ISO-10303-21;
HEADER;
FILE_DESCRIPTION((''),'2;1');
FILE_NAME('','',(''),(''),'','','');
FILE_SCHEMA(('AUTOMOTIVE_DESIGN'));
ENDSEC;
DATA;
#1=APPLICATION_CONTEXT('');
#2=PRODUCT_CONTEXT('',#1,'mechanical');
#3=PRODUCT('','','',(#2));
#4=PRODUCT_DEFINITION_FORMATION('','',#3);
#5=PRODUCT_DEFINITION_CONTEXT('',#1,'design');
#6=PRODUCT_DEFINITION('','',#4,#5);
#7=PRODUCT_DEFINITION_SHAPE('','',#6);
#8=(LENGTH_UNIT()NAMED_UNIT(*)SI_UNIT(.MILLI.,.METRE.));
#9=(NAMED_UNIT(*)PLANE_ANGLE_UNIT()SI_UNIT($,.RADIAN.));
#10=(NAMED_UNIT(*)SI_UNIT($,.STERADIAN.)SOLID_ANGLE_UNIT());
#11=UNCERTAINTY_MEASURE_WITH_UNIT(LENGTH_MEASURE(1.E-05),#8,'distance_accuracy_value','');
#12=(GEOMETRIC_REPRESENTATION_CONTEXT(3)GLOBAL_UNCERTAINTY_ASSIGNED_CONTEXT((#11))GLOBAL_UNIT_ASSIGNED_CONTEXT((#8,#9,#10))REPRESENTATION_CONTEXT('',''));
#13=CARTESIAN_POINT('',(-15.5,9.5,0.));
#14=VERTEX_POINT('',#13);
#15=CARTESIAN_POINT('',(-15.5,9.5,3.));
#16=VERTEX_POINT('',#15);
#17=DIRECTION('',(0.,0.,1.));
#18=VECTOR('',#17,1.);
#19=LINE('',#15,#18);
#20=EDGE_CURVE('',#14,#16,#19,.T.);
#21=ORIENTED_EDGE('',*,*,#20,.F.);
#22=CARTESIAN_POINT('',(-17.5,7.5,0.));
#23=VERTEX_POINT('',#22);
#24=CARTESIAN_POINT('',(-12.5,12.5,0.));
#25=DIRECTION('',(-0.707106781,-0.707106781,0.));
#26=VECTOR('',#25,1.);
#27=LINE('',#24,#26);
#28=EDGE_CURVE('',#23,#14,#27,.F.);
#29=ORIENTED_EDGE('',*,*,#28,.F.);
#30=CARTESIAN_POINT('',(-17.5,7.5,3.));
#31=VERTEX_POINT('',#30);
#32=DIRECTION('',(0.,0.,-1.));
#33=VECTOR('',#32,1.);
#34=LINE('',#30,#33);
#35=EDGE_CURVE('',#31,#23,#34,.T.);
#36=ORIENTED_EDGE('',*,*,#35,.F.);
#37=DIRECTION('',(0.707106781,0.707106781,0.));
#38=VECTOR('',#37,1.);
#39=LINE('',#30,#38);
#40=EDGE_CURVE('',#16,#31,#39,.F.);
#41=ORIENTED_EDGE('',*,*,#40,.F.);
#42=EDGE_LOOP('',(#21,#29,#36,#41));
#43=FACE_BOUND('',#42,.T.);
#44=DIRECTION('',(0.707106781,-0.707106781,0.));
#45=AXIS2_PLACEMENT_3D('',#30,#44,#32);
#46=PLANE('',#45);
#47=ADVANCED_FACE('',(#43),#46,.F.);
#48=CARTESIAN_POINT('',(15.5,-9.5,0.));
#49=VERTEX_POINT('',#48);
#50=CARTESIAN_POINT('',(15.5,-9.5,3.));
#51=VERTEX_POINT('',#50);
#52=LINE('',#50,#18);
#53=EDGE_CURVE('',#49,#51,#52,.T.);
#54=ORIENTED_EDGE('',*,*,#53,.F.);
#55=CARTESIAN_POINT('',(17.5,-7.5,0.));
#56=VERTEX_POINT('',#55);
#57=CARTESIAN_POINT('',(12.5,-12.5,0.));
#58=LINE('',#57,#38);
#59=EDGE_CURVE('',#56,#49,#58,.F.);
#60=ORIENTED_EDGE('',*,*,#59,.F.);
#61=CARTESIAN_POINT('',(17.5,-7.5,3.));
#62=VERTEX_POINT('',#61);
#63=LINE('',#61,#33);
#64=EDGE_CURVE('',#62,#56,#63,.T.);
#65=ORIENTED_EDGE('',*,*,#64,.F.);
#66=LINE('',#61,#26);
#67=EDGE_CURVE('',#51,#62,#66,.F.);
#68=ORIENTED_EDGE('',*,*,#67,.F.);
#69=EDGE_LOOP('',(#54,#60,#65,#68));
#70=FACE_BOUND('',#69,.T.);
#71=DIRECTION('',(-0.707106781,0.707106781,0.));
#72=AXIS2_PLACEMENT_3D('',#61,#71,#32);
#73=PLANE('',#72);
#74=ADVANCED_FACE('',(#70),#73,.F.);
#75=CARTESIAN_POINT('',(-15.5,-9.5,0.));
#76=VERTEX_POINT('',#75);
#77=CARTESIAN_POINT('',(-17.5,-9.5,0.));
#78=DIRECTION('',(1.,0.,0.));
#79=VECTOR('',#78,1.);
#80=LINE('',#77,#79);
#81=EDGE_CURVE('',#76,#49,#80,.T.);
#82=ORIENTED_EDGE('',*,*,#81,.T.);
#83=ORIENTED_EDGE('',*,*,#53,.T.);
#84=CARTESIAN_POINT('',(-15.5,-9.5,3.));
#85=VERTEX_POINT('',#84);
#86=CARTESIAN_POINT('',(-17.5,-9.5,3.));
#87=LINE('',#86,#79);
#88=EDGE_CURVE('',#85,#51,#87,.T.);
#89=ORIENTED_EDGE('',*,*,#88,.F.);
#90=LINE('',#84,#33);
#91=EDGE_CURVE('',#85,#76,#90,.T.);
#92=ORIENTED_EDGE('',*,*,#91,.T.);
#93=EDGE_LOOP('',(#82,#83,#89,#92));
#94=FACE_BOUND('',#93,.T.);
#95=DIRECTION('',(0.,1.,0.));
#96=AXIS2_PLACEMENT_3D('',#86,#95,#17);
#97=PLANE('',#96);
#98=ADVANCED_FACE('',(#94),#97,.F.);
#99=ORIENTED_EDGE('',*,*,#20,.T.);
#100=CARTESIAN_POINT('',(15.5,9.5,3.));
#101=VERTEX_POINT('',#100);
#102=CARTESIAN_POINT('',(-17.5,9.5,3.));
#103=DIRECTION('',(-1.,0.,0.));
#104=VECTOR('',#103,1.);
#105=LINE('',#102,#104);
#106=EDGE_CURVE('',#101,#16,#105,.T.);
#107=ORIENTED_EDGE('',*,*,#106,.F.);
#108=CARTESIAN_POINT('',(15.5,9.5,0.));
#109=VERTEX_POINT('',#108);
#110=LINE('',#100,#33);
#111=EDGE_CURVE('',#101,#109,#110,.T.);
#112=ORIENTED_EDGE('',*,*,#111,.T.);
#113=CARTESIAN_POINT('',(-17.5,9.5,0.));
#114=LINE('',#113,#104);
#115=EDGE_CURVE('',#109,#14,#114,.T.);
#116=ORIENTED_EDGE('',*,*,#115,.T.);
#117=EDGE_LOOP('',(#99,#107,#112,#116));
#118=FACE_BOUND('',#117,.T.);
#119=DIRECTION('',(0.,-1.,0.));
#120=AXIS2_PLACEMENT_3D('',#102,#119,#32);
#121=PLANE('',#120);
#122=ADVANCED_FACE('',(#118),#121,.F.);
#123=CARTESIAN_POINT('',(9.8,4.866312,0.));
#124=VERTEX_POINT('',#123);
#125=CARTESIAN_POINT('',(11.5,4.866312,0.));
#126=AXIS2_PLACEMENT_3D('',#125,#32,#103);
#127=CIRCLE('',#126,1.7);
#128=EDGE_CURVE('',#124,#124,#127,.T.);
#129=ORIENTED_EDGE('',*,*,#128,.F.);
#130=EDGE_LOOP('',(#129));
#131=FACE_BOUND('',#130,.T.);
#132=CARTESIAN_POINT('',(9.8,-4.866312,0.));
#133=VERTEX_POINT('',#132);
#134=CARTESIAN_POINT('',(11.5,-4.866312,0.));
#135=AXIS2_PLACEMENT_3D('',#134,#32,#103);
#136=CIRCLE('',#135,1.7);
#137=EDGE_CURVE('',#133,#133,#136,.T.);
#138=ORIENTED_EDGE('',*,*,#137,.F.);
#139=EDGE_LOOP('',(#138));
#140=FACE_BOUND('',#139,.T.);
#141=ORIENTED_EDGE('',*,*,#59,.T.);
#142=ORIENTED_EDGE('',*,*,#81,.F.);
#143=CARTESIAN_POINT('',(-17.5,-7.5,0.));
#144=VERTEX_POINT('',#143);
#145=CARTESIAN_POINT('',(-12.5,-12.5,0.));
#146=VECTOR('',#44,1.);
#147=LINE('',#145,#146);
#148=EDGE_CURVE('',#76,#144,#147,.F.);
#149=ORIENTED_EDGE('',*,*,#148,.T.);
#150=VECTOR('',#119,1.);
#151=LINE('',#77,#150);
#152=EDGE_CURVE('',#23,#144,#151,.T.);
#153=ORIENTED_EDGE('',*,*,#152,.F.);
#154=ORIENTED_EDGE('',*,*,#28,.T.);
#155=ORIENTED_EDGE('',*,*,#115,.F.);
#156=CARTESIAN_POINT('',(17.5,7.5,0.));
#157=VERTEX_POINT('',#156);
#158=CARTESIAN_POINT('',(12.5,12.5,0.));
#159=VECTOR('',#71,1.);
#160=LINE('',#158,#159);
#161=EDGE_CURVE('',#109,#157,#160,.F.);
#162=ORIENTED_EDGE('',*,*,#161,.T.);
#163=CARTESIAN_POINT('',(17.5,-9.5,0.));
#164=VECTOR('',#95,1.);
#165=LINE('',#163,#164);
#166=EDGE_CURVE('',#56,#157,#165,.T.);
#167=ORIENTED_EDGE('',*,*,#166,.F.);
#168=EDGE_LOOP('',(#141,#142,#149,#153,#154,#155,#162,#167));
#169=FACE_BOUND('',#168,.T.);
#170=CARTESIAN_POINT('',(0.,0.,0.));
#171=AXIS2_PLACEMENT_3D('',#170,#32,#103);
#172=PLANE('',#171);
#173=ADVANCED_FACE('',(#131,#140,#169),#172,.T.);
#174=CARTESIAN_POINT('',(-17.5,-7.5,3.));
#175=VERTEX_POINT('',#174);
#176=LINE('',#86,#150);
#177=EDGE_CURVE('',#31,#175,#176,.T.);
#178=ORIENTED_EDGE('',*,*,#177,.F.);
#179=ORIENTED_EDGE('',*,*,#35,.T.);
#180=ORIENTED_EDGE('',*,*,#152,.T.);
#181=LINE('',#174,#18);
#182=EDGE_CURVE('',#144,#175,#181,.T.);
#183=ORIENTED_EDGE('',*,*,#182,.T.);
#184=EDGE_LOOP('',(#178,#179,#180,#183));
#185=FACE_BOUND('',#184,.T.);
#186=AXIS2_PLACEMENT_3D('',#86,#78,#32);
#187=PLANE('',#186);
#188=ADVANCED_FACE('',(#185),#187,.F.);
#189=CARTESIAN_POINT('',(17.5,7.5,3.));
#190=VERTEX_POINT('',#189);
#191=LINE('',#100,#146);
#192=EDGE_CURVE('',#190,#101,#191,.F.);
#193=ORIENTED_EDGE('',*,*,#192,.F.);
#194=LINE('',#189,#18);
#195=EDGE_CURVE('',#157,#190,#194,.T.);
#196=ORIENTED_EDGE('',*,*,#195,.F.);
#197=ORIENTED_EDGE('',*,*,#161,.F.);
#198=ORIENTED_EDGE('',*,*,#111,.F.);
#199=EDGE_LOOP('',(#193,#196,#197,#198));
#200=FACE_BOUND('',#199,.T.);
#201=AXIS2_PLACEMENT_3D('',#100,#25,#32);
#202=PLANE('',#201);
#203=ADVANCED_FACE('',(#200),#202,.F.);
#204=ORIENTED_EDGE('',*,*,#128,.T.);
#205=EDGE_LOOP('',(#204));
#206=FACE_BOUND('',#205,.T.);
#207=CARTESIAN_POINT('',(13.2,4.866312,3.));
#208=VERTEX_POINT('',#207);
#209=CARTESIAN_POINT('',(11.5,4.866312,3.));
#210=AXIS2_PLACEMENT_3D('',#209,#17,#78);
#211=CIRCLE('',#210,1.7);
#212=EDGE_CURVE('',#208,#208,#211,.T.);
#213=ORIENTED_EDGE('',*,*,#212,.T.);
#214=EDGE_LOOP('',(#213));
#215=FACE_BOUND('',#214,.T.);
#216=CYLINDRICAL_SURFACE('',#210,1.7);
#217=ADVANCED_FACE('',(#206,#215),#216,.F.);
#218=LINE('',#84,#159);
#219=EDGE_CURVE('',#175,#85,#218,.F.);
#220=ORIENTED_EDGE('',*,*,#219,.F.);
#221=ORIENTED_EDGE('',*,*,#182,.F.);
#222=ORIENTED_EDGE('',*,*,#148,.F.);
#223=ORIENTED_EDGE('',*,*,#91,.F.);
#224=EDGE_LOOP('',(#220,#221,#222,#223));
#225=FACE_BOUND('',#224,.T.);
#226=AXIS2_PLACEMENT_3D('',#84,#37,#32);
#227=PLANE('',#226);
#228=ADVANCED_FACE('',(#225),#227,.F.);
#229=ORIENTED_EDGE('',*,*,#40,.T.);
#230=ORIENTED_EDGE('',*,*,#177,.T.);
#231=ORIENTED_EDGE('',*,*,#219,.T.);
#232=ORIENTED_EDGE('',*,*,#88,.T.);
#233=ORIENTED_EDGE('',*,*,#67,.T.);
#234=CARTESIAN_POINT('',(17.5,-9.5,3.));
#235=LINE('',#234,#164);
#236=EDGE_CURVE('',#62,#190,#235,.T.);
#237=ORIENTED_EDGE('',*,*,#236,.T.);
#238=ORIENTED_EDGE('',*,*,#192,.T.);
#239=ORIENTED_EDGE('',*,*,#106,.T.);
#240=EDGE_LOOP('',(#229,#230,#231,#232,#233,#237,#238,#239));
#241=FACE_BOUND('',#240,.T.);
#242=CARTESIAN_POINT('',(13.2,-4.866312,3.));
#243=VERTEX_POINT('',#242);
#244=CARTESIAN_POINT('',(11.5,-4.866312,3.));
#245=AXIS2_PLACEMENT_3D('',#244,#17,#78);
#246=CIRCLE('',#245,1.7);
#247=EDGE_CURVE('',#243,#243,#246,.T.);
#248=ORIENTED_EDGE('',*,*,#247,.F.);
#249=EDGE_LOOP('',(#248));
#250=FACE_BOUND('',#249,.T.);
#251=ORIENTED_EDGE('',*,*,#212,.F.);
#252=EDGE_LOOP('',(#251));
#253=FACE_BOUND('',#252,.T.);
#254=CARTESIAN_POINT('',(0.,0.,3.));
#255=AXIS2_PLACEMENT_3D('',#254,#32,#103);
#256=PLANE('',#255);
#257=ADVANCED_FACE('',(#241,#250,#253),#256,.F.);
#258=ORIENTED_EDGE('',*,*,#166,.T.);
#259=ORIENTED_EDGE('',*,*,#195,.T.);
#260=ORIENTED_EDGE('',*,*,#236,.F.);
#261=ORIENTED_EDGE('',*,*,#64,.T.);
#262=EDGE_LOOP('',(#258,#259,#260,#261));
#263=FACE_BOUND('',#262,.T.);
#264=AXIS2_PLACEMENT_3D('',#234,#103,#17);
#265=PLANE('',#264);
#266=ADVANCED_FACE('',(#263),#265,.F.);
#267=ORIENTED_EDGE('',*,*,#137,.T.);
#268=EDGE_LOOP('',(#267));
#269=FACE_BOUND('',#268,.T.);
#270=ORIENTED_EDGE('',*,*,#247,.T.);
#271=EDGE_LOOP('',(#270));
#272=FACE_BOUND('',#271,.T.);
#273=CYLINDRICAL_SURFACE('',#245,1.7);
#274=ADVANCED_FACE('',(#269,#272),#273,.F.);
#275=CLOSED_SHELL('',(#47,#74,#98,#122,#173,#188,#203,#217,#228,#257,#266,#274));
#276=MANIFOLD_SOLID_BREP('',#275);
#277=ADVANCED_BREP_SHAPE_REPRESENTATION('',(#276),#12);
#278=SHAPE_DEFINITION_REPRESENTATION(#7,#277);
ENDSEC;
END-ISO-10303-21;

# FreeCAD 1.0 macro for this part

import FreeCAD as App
import Part
import Sketcher
from FreeCAD import Vector
Q = App.Units.Quantity


def edges_at(feature, points):
    """Names of the edges that pass closest to the given points."""
    edges = feature.Shape.Edges
    near = lambda p: min(range(len(edges)), key=lambda i: edges[i].distToShape(Part.Vertex(*p))[0])
    return sorted({f"Edge{near(p) + 1}" for p in points})


def add_polygon(sketch, points):
    """Adds a closed chain of lines whose ends are joined by coincident constraints."""
    first, n = sketch.GeometryCount, len(points)
    for a, b in zip(points, points[1:] + points[:1]):
        sketch.addGeometry(Part.LineSegment(App.Vector(*a, 0), App.Vector(*b, 0)), False)
    for i in range(n):
        sketch.addConstraint(Sketcher.Constraint("Coincident", first + i, 2, first + (i + 1) % n, 1))

doc = App.newDocument("Part")
body = doc.addObject("PartDesign::Body", "Body")

# Sketch on XY plane
sketch1 = body.newObject("Sketcher::SketchObject", "Sketch")
sketch1.AttachmentSupport = (doc.getObject("XY_Plane"), [""])
sketch1.MapMode = "FlatFace"
add_polygon(sketch1, [(-18, 10), (-18, -10), (18, -10), (18, 10)])  # lines 0-3
sketch1.addConstraint(Sketcher.Constraint("Vertical", 0))
sketch1.addConstraint(Sketcher.Constraint("Horizontal", 1))
sketch1.addConstraint(Sketcher.Constraint("Vertical", 2))
sketch1.addConstraint(Sketcher.Constraint("Horizontal", 3))
sketch1.addConstraint(Sketcher.Constraint("Symmetric", 0, 2, 2, 2, -1, 1))
sketch1.addConstraint(Sketcher.Constraint("DistanceX", 1, 1, 1, 2, Q("35 mm")))
sketch1.addConstraint(Sketcher.Constraint("DistanceY", 0, 2, 0, 1, Q("19 mm")))
pad1 = body.newObject("PartDesign::Pad", "Pad")
pad1.Profile = sketch1
pad1.Length = 3
doc.recompute()

chamfer = body.newObject("PartDesign::Chamfer", "Chamfer")
chamfer.Base = (pad1, edges_at(pad1, [
    (17.5, -9.5, 1.5),
    (-17.5, -9.5, 1.5),
    (-17.5, 9.5, 1.5),
    (17.5, 9.5, 1.5),
]))
chamfer.Size = 2

# Sketch on XY plane
sketch2 = body.newObject("Sketcher::SketchObject", "Sketch001")
sketch2.AttachmentSupport = (doc.getObject("XY_Plane"), [""])
sketch2.MapMode = "FlatFace"
sketch2.AttachmentOffset = App.Placement(Vector(0, 0, 3), App.Rotation())
sketch2.addGeometry(Part.Circle(Vector(11.5, 4.9, 0), Vector(0, 0, 1), 1.7), False)
sketch2.addGeometry(Part.Circle(Vector(11.5, -4.9, 0), Vector(0, 0, 1), 1.7), False)
sketch2.addConstraint(Sketcher.Constraint("Equal", 0, 1))
sketch2.addConstraint(Sketcher.Constraint("Symmetric", 0, 3, 1, 3, -1))
sketch2.addConstraint(Sketcher.Constraint("Diameter", 0, Q("3.4 mm")))
sketch2.addConstraint(Sketcher.Constraint("DistanceX", -1, 1, 0, 3, Q("11.5 mm")))
sketch2.addConstraint(Sketcher.Constraint("DistanceY", -1, 1, 0, 3, Q("4.866312 mm")))
doc.recompute()
hole = body.newObject("PartDesign::Hole", "Hole")
hole.Profile = sketch2
hole.ThreadType = "None"
hole.Diameter = 3.4
hole.DepthType = "Dimension"
hole.Depth = 3
hole.DrillPoint = "Flat"

doc.recompute()
